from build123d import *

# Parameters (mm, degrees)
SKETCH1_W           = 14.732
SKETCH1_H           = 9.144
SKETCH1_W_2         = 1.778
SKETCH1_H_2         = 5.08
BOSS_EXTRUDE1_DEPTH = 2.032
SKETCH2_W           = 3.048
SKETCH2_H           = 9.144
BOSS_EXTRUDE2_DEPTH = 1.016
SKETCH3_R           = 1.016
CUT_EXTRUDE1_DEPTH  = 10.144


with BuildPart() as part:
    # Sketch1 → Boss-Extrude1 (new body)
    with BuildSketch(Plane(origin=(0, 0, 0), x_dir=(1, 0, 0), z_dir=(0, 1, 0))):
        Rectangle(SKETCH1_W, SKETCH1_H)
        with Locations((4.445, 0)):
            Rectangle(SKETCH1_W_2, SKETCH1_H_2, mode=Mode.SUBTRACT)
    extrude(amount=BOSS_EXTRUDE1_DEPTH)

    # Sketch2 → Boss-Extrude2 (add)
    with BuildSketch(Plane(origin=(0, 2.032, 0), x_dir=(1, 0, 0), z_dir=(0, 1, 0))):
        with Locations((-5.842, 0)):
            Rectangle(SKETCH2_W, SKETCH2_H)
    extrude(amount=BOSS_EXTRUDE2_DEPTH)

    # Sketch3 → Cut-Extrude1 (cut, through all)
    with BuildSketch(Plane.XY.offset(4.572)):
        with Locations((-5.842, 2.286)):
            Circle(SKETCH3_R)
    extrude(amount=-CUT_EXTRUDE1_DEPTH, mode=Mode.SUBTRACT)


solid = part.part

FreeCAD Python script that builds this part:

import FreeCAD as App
import Part
import Sketcher

V = App.Vector
Q = App.Units.Quantity

doc = App.newDocument("Part")
body = doc.addObject("PartDesign::Body", "Body")

sketch1 = body.newObject("Sketcher::SketchObject", "Sketch")
sketch1.AttachmentSupport = (doc.getObject("XZ_Plane"), [""])
sketch1.MapMode = "FlatFace"
sketch1.addGeometry([
    Part.LineSegment(V(-7.4, -4.6, 0), V(-7.4, 4.6, 0)),
    Part.LineSegment(V(-7.4, 4.6, 0), V(7.4, 4.6, 0)),
    Part.LineSegment(V(7.4, 4.6, 0), V(7.4, -4.6, 0)),
    Part.LineSegment(V(7.4, -4.6, 0), V(-7.4, -4.6, 0)),
    Part.LineSegment(V(5.3, 2.5, 0), V(3.6, 2.5, 0)),
    Part.LineSegment(V(3.6, 2.5, 0), V(3.6, -2.5, 0)),
    Part.LineSegment(V(3.6, -2.5, 0), V(5.3, -2.5, 0)),
    Part.LineSegment(V(5.3, -2.5, 0), V(5.3, 2.5, 0)),
], False)
sketch1.addConstraint([
    Sketcher.Constraint("Coincident", 0, 2, 1, 1),
    Sketcher.Constraint("Coincident", 1, 2, 2, 1),
    Sketcher.Constraint("Coincident", 2, 2, 3, 1),
    Sketcher.Constraint("Coincident", 3, 2, 0, 1),
    Sketcher.Constraint("Coincident", 4, 2, 5, 1),
    Sketcher.Constraint("Coincident", 5, 2, 6, 1),
    Sketcher.Constraint("Coincident", 6, 2, 7, 1),
    Sketcher.Constraint("Coincident", 7, 2, 4, 1),
    Sketcher.Constraint("Vertical", 0),
    Sketcher.Constraint("Horizontal", 1),
    Sketcher.Constraint("Vertical", 2),
    Sketcher.Constraint("Horizontal", 3),
    Sketcher.Constraint("Horizontal", 4),
    Sketcher.Constraint("Vertical", 5),
    Sketcher.Constraint("Horizontal", 6),
    Sketcher.Constraint("Vertical", 7),
    Sketcher.Constraint("Symmetric", 0, 2, 2, 2, -1, 1),
    Sketcher.Constraint("DistanceY", 5, 2, 5, 1, Q("0.2 in")),
    Sketcher.Constraint("DistanceX", 1, 1, 1, 2, Q("0.58 in")),
    Sketcher.Constraint("DistanceX", 4, 2, 4, 1, Q("0.07 in")),
    Sketcher.Constraint("DistanceY", 0, 1, 0, 2, Q("0.36 in")),
    Sketcher.Constraint("DistanceY", -1, 1, 4, 2, Q("0.1 in")),
    Sketcher.Constraint("DistanceX", 3, 2, 6, 2, Q("0.5 in")),
])
pad1 = body.newObject("PartDesign::Pad", "Pad")
pad1.Profile = sketch1
pad1.Length = Q("0.08 in")
pad1.Reversed = True

sketch2 = body.newObject("Sketcher::SketchObject", "Sketch001")
sketch2.AttachmentSupport = (doc.getObject("XZ_Plane"), [""])
sketch2.MapMode = "FlatFace"
sketch2.AttachmentOffset = App.Placement(V(0, 0, -0.08 * 25.4), App.Rotation())
sketch2.addGeometry([
    Part.LineSegment(V(-7.4, -4.6, 0), V(-7.4, 4.6, 0)),
    Part.LineSegment(V(-7.4, 4.6, 0), V(-4.3, 4.6, 0)),
    Part.LineSegment(V(-4.3, 4.6, 0), V(-4.3, -4.6, 0)),
    Part.LineSegment(V(-4.3, -4.6, 0), V(-7.4, -4.6, 0)),
], False)
sketch2.addConstraint([
    Sketcher.Constraint("Coincident", 0, 2, 1, 1),
    Sketcher.Constraint("Coincident", 1, 2, 2, 1),
    Sketcher.Constraint("Coincident", 2, 2, 3, 1),
    Sketcher.Constraint("Coincident", 3, 2, 0, 1),
    Sketcher.Constraint("Vertical", 0),
    Sketcher.Constraint("Horizontal", 1),
    Sketcher.Constraint("Vertical", 2),
    Sketcher.Constraint("Horizontal", 3),
    Sketcher.Constraint("DistanceX", 1, 1, 1, 2, Q("0.12 in")),
    Sketcher.Constraint("DistanceY", 0, 1, 0, 2, Q("0.36 in")),
    Sketcher.Constraint("DistanceX", 0, 2, -1, 1, Q("0.29 in")),
    Sketcher.Constraint("DistanceY", -1, 1, 0, 2, Q("0.18 in")),
])
pad2 = body.newObject("PartDesign::Pad", "Pad001")
pad2.Profile = sketch2
pad2.Length = Q("0.04 in")
pad2.Reversed = True

sketch3 = body.newObject("Sketcher::SketchObject", "Sketch002")
sketch3.AttachmentSupport = (doc.getObject("XY_Plane"), [""])
sketch3.MapMode = "FlatFace"
sketch3.AttachmentOffset = App.Placement(V(0, 0, 0.18 * 25.4), App.Rotation())
sketch3.addGeometry(Part.Circle(V(-5.8, 2.3, 0), V(0, 0, 1), 1), False)
sketch3.addConstraint([
    Sketcher.Constraint("Diameter", 0, Q("0.08 in")),
    Sketcher.Constraint("DistanceX", 0, 3, -1, 1, Q("0.23 in")),
    Sketcher.Constraint("DistanceY", -1, 1, 0, 3, Q("0.09 in")),
])
pocket1 = body.newObject("PartDesign::Pocket", "Pocket")
pocket1.Profile = sketch3
pocket1.Type = "ThroughAll"

doc.recompute()
